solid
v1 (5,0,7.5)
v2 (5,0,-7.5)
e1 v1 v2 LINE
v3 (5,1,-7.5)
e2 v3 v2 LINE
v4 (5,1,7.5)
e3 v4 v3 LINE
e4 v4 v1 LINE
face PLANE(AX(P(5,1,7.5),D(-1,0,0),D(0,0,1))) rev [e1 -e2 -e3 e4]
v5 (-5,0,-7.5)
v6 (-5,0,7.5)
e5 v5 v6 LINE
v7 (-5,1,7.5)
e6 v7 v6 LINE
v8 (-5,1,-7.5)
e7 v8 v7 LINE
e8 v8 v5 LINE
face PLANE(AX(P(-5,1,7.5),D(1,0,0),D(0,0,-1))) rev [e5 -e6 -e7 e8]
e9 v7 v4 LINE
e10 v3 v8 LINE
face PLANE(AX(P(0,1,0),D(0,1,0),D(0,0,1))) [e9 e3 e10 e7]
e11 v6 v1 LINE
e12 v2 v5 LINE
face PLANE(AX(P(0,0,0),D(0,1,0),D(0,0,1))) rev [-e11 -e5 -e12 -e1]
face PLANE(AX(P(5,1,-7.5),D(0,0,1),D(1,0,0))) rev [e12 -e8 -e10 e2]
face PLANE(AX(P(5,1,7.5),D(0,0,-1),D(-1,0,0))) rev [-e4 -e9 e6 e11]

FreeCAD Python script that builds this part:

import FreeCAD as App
import Part
import Sketcher
from FreeCAD import Vector


def add_polygon(sketch, points):
    """Adds a closed chain of lines whose ends are joined by coincident constraints."""
    first, n = sketch.GeometryCount, len(points)
    for a, b in zip(points, points[1:] + points[:1]):
        sketch.addGeometry(Part.LineSegment(App.Vector(*a, 0), App.Vector(*b, 0)), False)
    for i in range(n):
        sketch.addConstraint(Sketcher.Constraint("Coincident", first + i, 2, first + (i + 1) % n, 1))

doc = App.newDocument("Part")
body = doc.addObject("PartDesign::Body", "Body")

# Sketch on XZ plane
sketch1 = body.newObject("Sketcher::SketchObject", "Sketch")
sketch1.AttachmentSupport = (doc.getObject("XZ_Plane"), [""])
sketch1.MapMode = "FlatFace"
add_polygon(sketch1, [(-5, -7.5), (-5, 7.5), (5, 7.5), (5, -7.5)])  # lines 0-3
sketch1.addConstraint([
    Sketcher.Constraint("Vertical", 0),
    Sketcher.Constraint("Horizontal", 1),
    Sketcher.Constraint("Vertical", 2),
    Sketcher.Constraint("Horizontal", 3),
    Sketcher.Constraint("Symmetric", 0, 2, 2, 2, -1, 1),
    Sketcher.Constraint("DistanceX", 1, 1, 1, 2, 10.0),
    Sketcher.Constraint("DistanceY", 0, 1, 0, 2, 15.0),
])
pad1 = body.newObject("PartDesign::Pad", "Pad")
pad1.Profile = sketch1
pad1.Length = 1
pad1.Reversed = True

doc.recompute()
